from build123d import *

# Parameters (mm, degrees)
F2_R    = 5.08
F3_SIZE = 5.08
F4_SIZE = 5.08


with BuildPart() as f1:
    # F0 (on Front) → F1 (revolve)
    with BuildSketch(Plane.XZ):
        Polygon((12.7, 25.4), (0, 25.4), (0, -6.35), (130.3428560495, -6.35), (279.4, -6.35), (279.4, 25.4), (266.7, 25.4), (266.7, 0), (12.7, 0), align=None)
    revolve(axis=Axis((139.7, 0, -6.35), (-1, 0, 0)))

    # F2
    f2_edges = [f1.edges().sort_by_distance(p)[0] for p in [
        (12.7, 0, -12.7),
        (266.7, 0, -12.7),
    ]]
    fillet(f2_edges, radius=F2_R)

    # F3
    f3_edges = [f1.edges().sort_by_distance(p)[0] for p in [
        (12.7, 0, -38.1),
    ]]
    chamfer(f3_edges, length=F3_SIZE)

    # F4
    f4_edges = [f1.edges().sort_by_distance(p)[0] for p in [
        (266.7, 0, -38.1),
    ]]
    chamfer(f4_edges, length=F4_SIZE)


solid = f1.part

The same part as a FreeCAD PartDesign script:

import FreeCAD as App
import Part
import Sketcher
from FreeCAD import Vector
Q = App.Units.Quantity


def edges_at(feature, points):
    """Names of the edges that pass closest to the given points."""
    edges = feature.Shape.Edges
    near = lambda p: min(range(len(edges)), key=lambda i: edges[i].distToShape(Part.Vertex(*p))[0])
    return sorted({f"Edge{near(p) + 1}" for p in points})


def add_polygon(sketch, points):
    """Adds a closed chain of lines whose ends are joined by coincident constraints."""
    first, n = sketch.GeometryCount, len(points)
    for a, b in zip(points, points[1:] + points[:1]):
        sketch.addGeometry(Part.LineSegment(App.Vector(*a, 0), App.Vector(*b, 0)), False)
    for i in range(n):
        sketch.addConstraint(Sketcher.Constraint("Coincident", first + i, 2, first + (i + 1) % n, 1))

doc = App.newDocument("Part")
body = doc.addObject("PartDesign::Body", "Body")

# Sketch on XZ plane
sketch1 = body.newObject("Sketcher::SketchObject", "Sketch")
sketch1.AttachmentSupport = (doc.getObject("XZ_Plane"), [""])
sketch1.MapMode = "FlatFace"
add_polygon(sketch1, [(13, 25), (0, 25), (0, -6), (279, -6), (279, 25), (267, 25), (267, 0), (13, 0)])  # lines 0-7
sketch1.addGeometry(Part.LineSegment(Vector(279, -6, 0), Vector(0, -6, 0)), True)  # axis
sketch1.addConstraint([
    Sketcher.Constraint("Horizontal", 0),
    Sketcher.Constraint("Vertical", 1),
    Sketcher.Constraint("Horizontal", 2),
    Sketcher.Constraint("Vertical", 3),
    Sketcher.Constraint("Horizontal", 4),
    Sketcher.Constraint("Vertical", 5),
    Sketcher.Constraint("Horizontal", 6),
    Sketcher.Constraint("Vertical", 7),
    Sketcher.Constraint("Horizontal", 8),
    Sketcher.Constraint("Coincident", 8, 1, 2, 2),
    Sketcher.Constraint("PointOnObject", 0, 2, -2),
    Sketcher.Constraint("PointOnObject", 5, 2, -1),
    Sketcher.Constraint("PointOnObject", 8, 2, -2),
    Sketcher.Constraint("Horizontal", 0, 2, 3, 2),
    Sketcher.Constraint("Equal", 0, 4),
    Sketcher.Constraint("DistanceX", 2, 1, 2, 2, Q("11 in")),
    Sketcher.Constraint("DistanceX", 6, 2, 6, 1, Q("10 in")),
    Sketcher.Constraint("DistanceY", 5, 2, 5, 1, Q("1 in")),
    Sketcher.Constraint("DistanceY", 1, 2, 1, 1, Q("1.25 in")),
])
revolution = body.newObject("PartDesign::Revolution", "Revolution")
revolution.Profile = sketch1
revolution.ReferenceAxis = (sketch1, ["Axis0"])
revolution.Angle = 360
doc.recompute()

fillet = body.newObject("PartDesign::Fillet", "Fillet")
fillet.Base = (revolution, edges_at(revolution, [(12.7, 0, -12.7), (266.7, 0, -12.7)]))
fillet.Radius = Q("0.2 in")
doc.recompute()

chamfer = body.newObject("PartDesign::Chamfer", "Chamfer")
chamfer.Base = (fillet, edges_at(fillet, [(12.7, 0, -38.1)]))
chamfer.Size = Q("0.2 in")
doc.recompute()

chamfer2 = body.newObject("PartDesign::Chamfer", "Chamfer001")
chamfer2.Base = (chamfer, edges_at(chamfer, [(266.7, 0, -38.1)]))
chamfer2.Size = Q("0.2 in")

doc.recompute()
